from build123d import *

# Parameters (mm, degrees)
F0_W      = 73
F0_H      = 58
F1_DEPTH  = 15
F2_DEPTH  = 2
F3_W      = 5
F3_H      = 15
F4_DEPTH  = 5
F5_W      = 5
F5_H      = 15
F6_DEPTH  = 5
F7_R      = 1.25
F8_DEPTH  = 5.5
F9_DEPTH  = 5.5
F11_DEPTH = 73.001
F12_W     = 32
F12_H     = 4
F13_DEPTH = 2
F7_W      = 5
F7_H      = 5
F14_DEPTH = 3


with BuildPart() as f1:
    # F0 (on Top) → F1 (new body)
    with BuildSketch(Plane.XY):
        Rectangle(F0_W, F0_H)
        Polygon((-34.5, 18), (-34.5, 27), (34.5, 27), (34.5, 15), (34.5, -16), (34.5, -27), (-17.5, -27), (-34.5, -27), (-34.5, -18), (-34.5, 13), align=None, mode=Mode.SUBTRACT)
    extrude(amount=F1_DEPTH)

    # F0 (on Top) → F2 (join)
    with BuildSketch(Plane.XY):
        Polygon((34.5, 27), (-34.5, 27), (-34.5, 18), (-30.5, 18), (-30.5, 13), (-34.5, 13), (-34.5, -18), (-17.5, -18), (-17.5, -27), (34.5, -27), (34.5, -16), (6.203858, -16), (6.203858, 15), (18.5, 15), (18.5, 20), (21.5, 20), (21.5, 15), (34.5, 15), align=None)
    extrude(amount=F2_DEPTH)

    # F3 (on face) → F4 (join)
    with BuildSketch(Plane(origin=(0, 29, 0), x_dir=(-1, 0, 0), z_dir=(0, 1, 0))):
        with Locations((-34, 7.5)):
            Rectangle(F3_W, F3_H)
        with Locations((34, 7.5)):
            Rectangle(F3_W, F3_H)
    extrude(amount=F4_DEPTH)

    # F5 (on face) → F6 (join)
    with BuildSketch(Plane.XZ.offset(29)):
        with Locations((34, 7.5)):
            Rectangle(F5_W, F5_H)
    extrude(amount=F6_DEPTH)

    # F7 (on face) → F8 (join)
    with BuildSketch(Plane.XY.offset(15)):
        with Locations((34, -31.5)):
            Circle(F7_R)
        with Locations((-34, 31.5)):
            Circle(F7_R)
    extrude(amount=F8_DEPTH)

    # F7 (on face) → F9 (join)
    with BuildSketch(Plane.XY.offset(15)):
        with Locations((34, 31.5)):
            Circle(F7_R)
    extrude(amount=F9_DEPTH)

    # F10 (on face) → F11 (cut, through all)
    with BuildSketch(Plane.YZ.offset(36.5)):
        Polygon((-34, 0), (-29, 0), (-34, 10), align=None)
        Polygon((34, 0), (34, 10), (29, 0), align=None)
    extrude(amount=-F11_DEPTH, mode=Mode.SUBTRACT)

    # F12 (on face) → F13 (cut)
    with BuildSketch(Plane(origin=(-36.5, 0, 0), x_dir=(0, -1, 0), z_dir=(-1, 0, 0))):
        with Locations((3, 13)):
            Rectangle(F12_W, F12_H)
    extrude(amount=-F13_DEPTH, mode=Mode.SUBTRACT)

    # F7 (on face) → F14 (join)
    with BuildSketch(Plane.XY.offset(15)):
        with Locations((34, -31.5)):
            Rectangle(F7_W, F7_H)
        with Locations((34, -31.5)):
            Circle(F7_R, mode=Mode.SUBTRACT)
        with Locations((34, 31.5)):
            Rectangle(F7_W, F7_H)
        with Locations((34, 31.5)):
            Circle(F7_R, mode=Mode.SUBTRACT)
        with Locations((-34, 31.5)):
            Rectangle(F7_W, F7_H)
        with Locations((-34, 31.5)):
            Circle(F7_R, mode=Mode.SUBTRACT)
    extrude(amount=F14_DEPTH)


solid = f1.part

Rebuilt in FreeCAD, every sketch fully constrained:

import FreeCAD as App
import Part
import Sketcher

V = App.Vector

doc = App.newDocument("Part")
params = doc.addObject("Spreadsheet::Sheet", "Params")
for row, (alias, value) in enumerate([
    ("sketch1_width", "73 mm"),
    ("sketch1_width2", "69 mm"),
    ("sketch1_height", "58 mm"),
    ("sketch1_height2", "54 mm"),
    ("pad1_length", "15 mm"),
    ("sketch2_width", "69 mm"),
    ("sketch2_width2", "4 mm"),
    ("sketch2_width3", "17 mm"),
    ("sketch2_width4", "3 mm"),
    ("sketch2_width5", "13 mm"),
    ("pad2_length", "2 mm"),
    ("sketch3_width", "5 mm"),
    ("sketch3_height", "15 mm"),
    ("pad3_length", "5 mm"),
    ("sketch4_width", "5 mm"),
    ("sketch4_height", "15 mm"),
    ("pad4_length", "5 mm"),
    ("sketch5_diameter", "2.5 mm"),
    ("pad5_length", "5.5 mm"),
    ("sketch6_diameter", "2.5 mm"),
    ("pad6_length", "5.5 mm"),
    ("sketch7_width", "5 mm"),
    ("sketch7_height", "10 mm"),
    ("sketch8_width", "32 mm"),
    ("sketch8_height", "4 mm"),
    ("pocket2_length", "2 mm"),
    ("sketch9_diameter", "2.5 mm"),
    ("sketch9_width", "5 mm"),
    ("pad7_length", "3 mm"),
], start=1):
    params.set(f"A{row}", alias)
    params.set(f"B{row}", "=" + value)
    params.setAlias(f"B{row}", alias)

body = doc.addObject("PartDesign::Body", "Body")

# Sketch on XY plane
sketch1 = body.newObject("Sketcher::SketchObject", "Sketch")
sketch1.AttachmentSupport = (doc.getObject("XY_Plane"), [""])
sketch1.MapMode = "FlatFace"
sketch1.addGeometry(Part.LineSegment(V(-36, 29, 0), V(-36, -29, 0)), False)
sketch1.addGeometry(Part.LineSegment(V(-36, -29, 0), V(36, -29, 0)), False)
sketch1.addGeometry(Part.LineSegment(V(36, -29, 0), V(36, 29, 0)), False)
sketch1.addGeometry(Part.LineSegment(V(36, 29, 0), V(-36, 29, 0)), False)
sketch1.addGeometry(Part.LineSegment(V(-34, -27, 0), V(-34, 27, 0)), False)
sketch1.addGeometry(Part.LineSegment(V(-34, 27, 0), V(34, 27, 0)), False)
sketch1.addGeometry(Part.LineSegment(V(34, 27, 0), V(34, -27, 0)), False)
sketch1.addGeometry(Part.LineSegment(V(34, -27, 0), V(-34, -27, 0)), False)
sketch1.addConstraint(Sketcher.Constraint("Coincident", 0, 2, 1, 1))
sketch1.addConstraint(Sketcher.Constraint("Coincident", 1, 2, 2, 1))
sketch1.addConstraint(Sketcher.Constraint("Coincident", 2, 2, 3, 1))
sketch1.addConstraint(Sketcher.Constraint("Coincident", 3, 2, 0, 1))
sketch1.addConstraint(Sketcher.Constraint("Coincident", 4, 2, 5, 1))
sketch1.addConstraint(Sketcher.Constraint("Coincident", 5, 2, 6, 1))
sketch1.addConstraint(Sketcher.Constraint("Coincident", 6, 2, 7, 1))
sketch1.addConstraint(Sketcher.Constraint("Coincident", 7, 2, 4, 1))
sketch1.addConstraint(Sketcher.Constraint("Vertical", 0))
sketch1.addConstraint(Sketcher.Constraint("Horizontal", 1))
sketch1.addConstraint(Sketcher.Constraint("Vertical", 2))
sketch1.addConstraint(Sketcher.Constraint("Horizontal", 3))
sketch1.addConstraint(Sketcher.Constraint("Vertical", 4))
sketch1.addConstraint(Sketcher.Constraint("Horizontal", 5))
sketch1.addConstraint(Sketcher.Constraint("Vertical", 6))
sketch1.addConstraint(Sketcher.Constraint("Horizontal", 7))
sketch1.addConstraint(Sketcher.Constraint("Symmetric", 0, 2, 2, 2, -1, 1))
sketch1.addConstraint(Sketcher.Constraint("Symmetric", 4, 2, 6, 2, -1, 1))
sketch1.addConstraint(Sketcher.Constraint("DistanceX", 1, 1, 1, 2, 73.0))
sketch1.addConstraint(Sketcher.Constraint("DistanceX", 5, 1, 5, 2, 69.0))
sketch1.addConstraint(Sketcher.Constraint("DistanceY", 0, 2, 0, 1, 58.0))
sketch1.addConstraint(Sketcher.Constraint("DistanceY", 4, 1, 4, 2, 54.0))
sketch1.setExpression("Constraints[18]", "Params.sketch1_width")
sketch1.setExpression("Constraints[19]", "Params.sketch1_width2")
sketch1.setExpression("Constraints[20]", "Params.sketch1_height")
sketch1.setExpression("Constraints[21]", "Params.sketch1_height2")
pad1 = body.newObject("PartDesign::Pad", "Pad")
pad1.Profile = sketch1
pad1.setExpression("Length", "Params.pad1_length")

# Sketch on XY plane
sketch2 = body.newObject("Sketcher::SketchObject", "Sketch001")
sketch2.AttachmentSupport = (doc.getObject("XY_Plane"), [""])
sketch2.MapMode = "FlatFace"
sketch2.addGeometry(Part.LineSegment(V(34.5, 27, 0), V(-34.5, 27, 0)), False)
sketch2.addGeometry(Part.LineSegment(V(-34.5, 27, 0), V(-34.5, 18, 0)), False)
sketch2.addGeometry(Part.LineSegment(V(-34.5, 18, 0), V(-30.5, 18, 0)), False)
sketch2.addGeometry(Part.LineSegment(V(-30.5, 18, 0), V(-30.5, 13, 0)), False)
sketch2.addGeometry(Part.LineSegment(V(-30.5, 13, 0), V(-34.5, 13, 0)), False)
sketch2.addGeometry(Part.LineSegment(V(-34.5, 13, 0), V(-34.5, -18, 0)), False)
sketch2.addGeometry(Part.LineSegment(V(-34.5, -18, 0), V(-17.5, -18, 0)), False)
sketch2.addGeometry(Part.LineSegment(V(-17.5, -18, 0), V(-17.5, -27, 0)), False)
sketch2.addGeometry(Part.LineSegment(V(-17.5, -27, 0), V(34.5, -27, 0)), False)
sketch2.addGeometry(Part.LineSegment(V(34.5, -27, 0), V(34.5, -16, 0)), False)
sketch2.addGeometry(Part.LineSegment(V(34.5, -16, 0), V(6.2, -16, 0)), False)
sketch2.addGeometry(Part.LineSegment(V(6.2, -16, 0), V(6.2, 15, 0)), False)
sketch2.addGeometry(Part.LineSegment(V(6.2, 15, 0), V(18.5, 15, 0)), False)
sketch2.addGeometry(Part.LineSegment(V(18.5, 15, 0), V(18.5, 20, 0)), False)
sketch2.addGeometry(Part.LineSegment(V(18.5, 20, 0), V(21.5, 20, 0)), False)
sketch2.addGeometry(Part.LineSegment(V(21.5, 20, 0), V(21.5, 15, 0)), False)
sketch2.addGeometry(Part.LineSegment(V(21.5, 15, 0), V(34.5, 15, 0)), False)
sketch2.addGeometry(Part.LineSegment(V(34.5, 15, 0), V(34.5, 27, 0)), False)
sketch2.addConstraint(Sketcher.Constraint("Coincident", 0, 2, 1, 1))
sketch2.addConstraint(Sketcher.Constraint("Coincident", 1, 2, 2, 1))
sketch2.addConstraint(Sketcher.Constraint("Coincident", 2, 2, 3, 1))
sketch2.addConstraint(Sketcher.Constraint("Coincident", 3, 2, 4, 1))
sketch2.addConstraint(Sketcher.Constraint("Coincident", 4, 2, 5, 1))
sketch2.addConstraint(Sketcher.Constraint("Coincident", 5, 2, 6, 1))
sketch2.addConstraint(Sketcher.Constraint("Coincident", 6, 2, 7, 1))
sketch2.addConstraint(Sketcher.Constraint("Coincident", 7, 2, 8, 1))
sketch2.addConstraint(Sketcher.Constraint("Coincident", 8, 2, 9, 1))
sketch2.addConstraint(Sketcher.Constraint("Coincident", 9, 2, 10, 1))
sketch2.addConstraint(Sketcher.Constraint("Coincident", 10, 2, 11, 1))
sketch2.addConstraint(Sketcher.Constraint("Coincident", 11, 2, 12, 1))
sketch2.addConstraint(Sketcher.Constraint("Coincident", 12, 2, 13, 1))
sketch2.addConstraint(Sketcher.Constraint("Coincident", 13, 2, 14, 1))
sketch2.addConstraint(Sketcher.Constraint("Coincident", 14, 2, 15, 1))
sketch2.addConstraint(Sketcher.Constraint("Coincident", 15, 2, 16, 1))
sketch2.addConstraint(Sketcher.Constraint("Coincident", 16, 2, 17, 1))
sketch2.addConstraint(Sketcher.Constraint("Coincident", 17, 2, 0, 1))
sketch2.addConstraint(Sketcher.Constraint("Horizontal", 0))
sketch2.addConstraint(Sketcher.Constraint("Vertical", 1))
sketch2.addConstraint(Sketcher.Constraint("Horizontal", 2))
sketch2.addConstraint(Sketcher.Constraint("Vertical", 3))
sketch2.addConstraint(Sketcher.Constraint("Horizontal", 4))
sketch2.addConstraint(Sketcher.Constraint("Vertical", 5))
sketch2.addConstraint(Sketcher.Constraint("Horizontal", 6))
sketch2.addConstraint(Sketcher.Constraint("Vertical", 7))
sketch2.addConstraint(Sketcher.Constraint("Horizontal", 8))
sketch2.addConstraint(Sketcher.Constraint("Vertical", 9))
sketch2.addConstraint(Sketcher.Constraint("Horizontal", 10))
sketch2.addConstraint(Sketcher.Constraint("Vertical", 11))
sketch2.addConstraint(Sketcher.Constraint("Horizontal", 12))
sketch2.addConstraint(Sketcher.Constraint("Vertical", 13))
sketch2.addConstraint(Sketcher.Constraint("Horizontal", 14))
sketch2.addConstraint(Sketcher.Constraint("Vertical", 15))
sketch2.addConstraint(Sketcher.Constraint("Horizontal", 16))
sketch2.addConstraint(Sketcher.Constraint("Vertical", 17))
sketch2.addConstraint(Sketcher.Constraint("Symmetric", 0, 2, 8, 2, -1, 1))
sketch2.addConstraint(Sketcher.Constraint("Symmetric", 1, 2, 5, 2, -1))
sketch2.addConstraint(Sketcher.Constraint("Horizontal", 12, 2, 15, 2))
sketch2.addConstraint(Sketcher.Constraint("Vertical", 9, 2, 16, 2))
sketch2.addConstraint(Sketcher.Constraint("Equal", 5, 11))
sketch2.addConstraint(Sketcher.Constraint("Equal", 3, 13))
sketch2.addConstraint(Sketcher.Constraint("DistanceX", 0, 2, 0, 1, 69.0))
sketch2.addConstraint(Sketcher.Constraint("DistanceX", 2, 1, 2, 2, 4.0))
sketch2.addConstraint(Sketcher.Constraint("DistanceX", 6, 1, 6, 2, 17.0))
sketch2.addConstraint(Sketcher.Constraint("DistanceX", 14, 1, 14, 2, 3.0))
sketch2.addConstraint(Sketcher.Constraint("DistanceX", 16, 1, 16, 2, 13.0))
sketch2.addConstraint(Sketcher.Constraint("DistanceY", 1, 2, 1, 1, 9.0))
sketch2.addConstraint(Sketcher.Constraint("DistanceY", 3, 2, 3, 1, 5.0))
sketch2.addConstraint(Sketcher.Constraint("DistanceY", 5, 2, 5, 1, 31.0))
sketch2.addConstraint(Sketcher.Constraint("DistanceY", 9, 1, 9, 2, 11.0))
sketch2.addConstraint(Sketcher.Constraint("DistanceX", 10, 2, 10, 1, 28.296142))
sketch2.setExpression("Constraints[42]", "Params.sketch2_width")
sketch2.setExpression("Constraints[43]", "Params.sketch2_width2")
sketch2.setExpression("Constraints[44]", "Params.sketch2_width3")
sketch2.setExpression("Constraints[45]", "Params.sketch2_width4")
sketch2.setExpression("Constraints[46]", "Params.sketch2_width5")
pad2 = body.newObject("PartDesign::Pad", "Pad001")
pad2.Profile = sketch2
pad2.setExpression("Length", "Params.pad2_length")

# Sketch on XZ plane
sketch3 = body.newObject("Sketcher::SketchObject", "Sketch002")
sketch3.AttachmentSupport = (doc.getObject("XZ_Plane"), [""])
sketch3.MapMode = "FlatFace"
sketch3.AttachmentOffset = App.Placement(V(0, 0, -29), App.Rotation())
sketch3.addGeometry(Part.LineSegment(V(36, 15, 0), V(36, 0, 0)), False)
sketch3.addGeometry(Part.LineSegment(V(36, 0, 0), V(32, 0, 0)), False)
sketch3.addGeometry(Part.LineSegment(V(32, 0, 0), V(32, 15, 0)), False)
sketch3.addGeometry(Part.LineSegment(V(32, 15, 0), V(36, 15, 0)), False)
sketch3.addGeometry(Part.LineSegment(V(-32, 15, 0), V(-32, 0, 0)), False)
sketch3.addGeometry(Part.LineSegment(V(-32, 0, 0), V(-36, 0, 0)), False)
sketch3.addGeometry(Part.LineSegment(V(-36, 0, 0), V(-36, 15, 0)), False)
sketch3.addGeometry(Part.LineSegment(V(-36, 15, 0), V(-32, 15, 0)), False)
sketch3.addConstraint(Sketcher.Constraint("Coincident", 0, 2, 1, 1))
sketch3.addConstraint(Sketcher.Constraint("Coincident", 1, 2, 2, 1))
sketch3.addConstraint(Sketcher.Constraint("Coincident", 2, 2, 3, 1))
sketch3.addConstraint(Sketcher.Constraint("Coincident", 3, 2, 0, 1))
sketch3.addConstraint(Sketcher.Constraint("Coincident", 4, 2, 5, 1))
sketch3.addConstraint(Sketcher.Constraint("Coincident", 5, 2, 6, 1))
sketch3.addConstraint(Sketcher.Constraint("Coincident", 6, 2, 7, 1))
sketch3.addConstraint(Sketcher.Constraint("Coincident", 7, 2, 4, 1))
sketch3.addConstraint(Sketcher.Constraint("Vertical", 0))
sketch3.addConstraint(Sketcher.Constraint("Horizontal", 1))
sketch3.addConstraint(Sketcher.Constraint("Vertical", 2))
sketch3.addConstraint(Sketcher.Constraint("Horizontal", 3))
sketch3.addConstraint(Sketcher.Constraint("Vertical", 4))
sketch3.addConstraint(Sketcher.Constraint("Horizontal", 5))
sketch3.addConstraint(Sketcher.Constraint("Vertical", 6))
sketch3.addConstraint(Sketcher.Constraint("Horizontal", 7))
sketch3.addConstraint(Sketcher.Constraint("Symmetric", 1, 2, 4, 2, -1, 1))
sketch3.addConstraint(Sketcher.Constraint("Symmetric", 0, 2, 5, 2, -2))
sketch3.addConstraint(Sketcher.Constraint("Horizontal", 3, 2, 6, 2))
sketch3.addConstraint(Sketcher.Constraint("DistanceX", 1, 2, 1, 1, 5.0))
sketch3.addConstraint(Sketcher.Constraint("DistanceY", 0, 2, 0, 1, 15.0))
sketch3.addConstraint(Sketcher.Constraint("DistanceX", 4, 2, 1, 2, 63.0))
sketch3.setExpression("Constraints[19]", "Params.sketch3_width")
sketch3.setExpression("Constraints[20]", "Params.sketch3_height")
pad3 = body.newObject("PartDesign::Pad", "Pad002")
pad3.Profile = sketch3
pad3.setExpression("Length", "Params.pad3_length")
pad3.Reversed = True

# Sketch on XZ plane
sketch4 = body.newObject("Sketcher::SketchObject", "Sketch003")
sketch4.AttachmentSupport = (doc.getObject("XZ_Plane"), [""])
sketch4.MapMode = "FlatFace"
sketch4.AttachmentOffset = App.Placement(V(0, 0, 29), App.Rotation())
sketch4.addGeometry(Part.LineSegment(V(32, 15, 0), V(32, 0, 0)), False)
sketch4.addGeometry(Part.LineSegment(V(32, 0, 0), V(36, 0, 0)), False)
sketch4.addGeometry(Part.LineSegment(V(36, 0, 0), V(36, 15, 0)), False)
sketch4.addGeometry(Part.LineSegment(V(36, 15, 0), V(32, 15, 0)), False)
sketch4.addConstraint(Sketcher.Constraint("Coincident", 0, 2, 1, 1))
sketch4.addConstraint(Sketcher.Constraint("Coincident", 1, 2, 2, 1))
sketch4.addConstraint(Sketcher.Constraint("Coincident", 2, 2, 3, 1))
sketch4.addConstraint(Sketcher.Constraint("Coincident", 3, 2, 0, 1))
sketch4.addConstraint(Sketcher.Constraint("Vertical", 0))
sketch4.addConstraint(Sketcher.Constraint("Horizontal", 1))
sketch4.addConstraint(Sketcher.Constraint("Vertical", 2))
sketch4.addConstraint(Sketcher.Constraint("Horizontal", 3))
sketch4.addConstraint(Sketcher.Constraint("PointOnObject", 0, 2, -1))
sketch4.addConstraint(Sketcher.Constraint("DistanceX", 1, 1, 1, 2, 5.0))
sketch4.addConstraint(Sketcher.Constraint("DistanceY", 0, 2, 0, 1, 15.0))
sketch4.addConstraint(Sketcher.Constraint("DistanceX", -1, 1, 0, 2, 31.5))
sketch4.setExpression("Constraints[9]", "Params.sketch4_width")
sketch4.setExpression("Constraints[10]", "Params.sketch4_height")
pad4 = body.newObject("PartDesign::Pad", "Pad003")
pad4.Profile = sketch4
pad4.setExpression("Length", "Params.pad4_length")

# Sketch on XY plane
sketch5 = body.newObject("Sketcher::SketchObject", "Sketch004")
sketch5.AttachmentSupport = (doc.getObject("XY_Plane"), [""])
sketch5.MapMode = "FlatFace"
sketch5.AttachmentOffset = App.Placement(V(0, 0, 15), App.Rotation())
sketch5.addGeometry(Part.Circle(V(34, -31.5, 0), V(0, 0, 1), 1.2), False)
sketch5.addGeometry(Part.Circle(V(-34, 31.5, 0), V(0, 0, 1), 1.2), False)
sketch5.addConstraint(Sketcher.Constraint("Equal", 0, 1))
sketch5.addConstraint(Sketcher.Constraint("Symmetric", 0, 3, 1, 3, -1, 1))
sketch5.addConstraint(Sketcher.Constraint("Diameter", 0, 2.5))
sketch5.addConstraint(Sketcher.Constraint("DistanceX", -1, 1, 0, 3, 34.0))
sketch5.addConstraint(Sketcher.Constraint("DistanceY", 0, 3, 1, 3, 63.0))
sketch5.setExpression("Constraints[2]", "Params.sketch5_diameter")
pad5 = body.newObject("PartDesign::Pad", "Pad004")
pad5.Profile = sketch5
pad5.setExpression("Length", "Params.pad5_length")

# Sketch on XY plane
sketch6 = body.newObject("Sketcher::SketchObject", "Sketch005")
sketch6.AttachmentSupport = (doc.getObject("XY_Plane"), [""])
sketch6.MapMode = "FlatFace"
sketch6.AttachmentOffset = App.Placement(V(0, 0, 15), App.Rotation())
sketch6.addGeometry(Part.Circle(V(34, 31.5, 0), V(0, 0, 1), 1.2), False)
sketch6.addConstraint(Sketcher.Constraint("Diameter", 0, 2.5))
sketch6.addConstraint(Sketcher.Constraint("DistanceX", -1, 1, 0, 3, 34.0))
sketch6.addConstraint(Sketcher.Constraint("DistanceY", -1, 1, 0, 3, 31.5))
sketch6.setExpression("Constraints[0]", "Params.sketch6_diameter")
pad6 = body.newObject("PartDesign::Pad", "Pad005")
pad6.Profile = sketch6
pad6.setExpression("Length", "Params.pad6_length")

# Sketch on YZ plane
sketch7 = body.newObject("Sketcher::SketchObject", "Sketch006")
sketch7.AttachmentSupport = (doc.getObject("YZ_Plane"), [""])
sketch7.MapMode = "FlatFace"
sketch7.AttachmentOffset = App.Placement(V(0, 0, 36.5), App.Rotation())
sketch7.addGeometry(Part.LineSegment(V(-34, 0, 0), V(-29, 0, 0)), False)
sketch7.addGeometry(Part.LineSegment(V(-29, 0, 0), V(-34, 10, 0)), False)
sketch7.addGeometry(Part.LineSegment(V(-34, 10, 0), V(-34, 0, 0)), False)
sketch7.addGeometry(Part.LineSegment(V(34, 0, 0), V(34, 10, 0)), False)
sketch7.addGeometry(Part.LineSegment(V(34, 10, 0), V(29, 0, 0)), False)
sketch7.addGeometry(Part.LineSegment(V(29, 0, 0), V(34, 0, 0)), False)
sketch7.addConstraint(Sketcher.Constraint("Coincident", 0, 2, 1, 1))
sketch7.addConstraint(Sketcher.Constraint("Coincident", 1, 2, 2, 1))
sketch7.addConstraint(Sketcher.Constraint("Coincident", 2, 2, 0, 1))
sketch7.addConstraint(Sketcher.Constraint("Coincident", 3, 2, 4, 1))
sketch7.addConstraint(Sketcher.Constraint("Coincident", 4, 2, 5, 1))
sketch7.addConstraint(Sketcher.Constraint("Coincident", 5, 2, 3, 1))
sketch7.addConstraint(Sketcher.Constraint("Horizontal", 0))
sketch7.addConstraint(Sketcher.Constraint("Vertical", 2))
sketch7.addConstraint(Sketcher.Constraint("Vertical", 3))
sketch7.addConstraint(Sketcher.Constraint("Horizontal", 5))
sketch7.addConstraint(Sketcher.Constraint("Symmetric", 0, 2, 4, 2, -1, 1))
sketch7.addConstraint(Sketcher.Constraint("Symmetric", 1, 2, 3, 2, -2))
sketch7.addConstraint(Sketcher.Constraint("PointOnObject", 0, 2, -1))
sketch7.addConstraint(Sketcher.Constraint("DistanceX", 0, 1, 0, 2, 5.0))
sketch7.addConstraint(Sketcher.Constraint("DistanceY", 2, 2, 2, 1, 10.0))
sketch7.addConstraint(Sketcher.Constraint("DistanceX", 0, 2, -1, 1, 29.0))
sketch7.setExpression("Constraints[13]", "Params.sketch7_width")
sketch7.setExpression("Constraints[14]", "Params.sketch7_height")
pocket1 = body.newObject("PartDesign::Pocket", "Pocket")
pocket1.Profile = sketch7
pocket1.Type = "ThroughAll"

# Sketch on YZ plane
sketch8 = body.newObject("Sketcher::SketchObject", "Sketch007")
sketch8.AttachmentSupport = (doc.getObject("YZ_Plane"), [""])
sketch8.MapMode = "FlatFace"
sketch8.AttachmentOffset = App.Placement(V(0, 0, -36.5), App.Rotation())
sketch8.addGeometry(Part.LineSegment(V(13, 15, 0), V(13, 11, 0)), False)
sketch8.addGeometry(Part.LineSegment(V(13, 11, 0), V(-19, 11, 0)), False)
sketch8.addGeometry(Part.LineSegment(V(-19, 11, 0), V(-19, 15, 0)), False)
sketch8.addGeometry(Part.LineSegment(V(-19, 15, 0), V(13, 15, 0)), False)
sketch8.addConstraint(Sketcher.Constraint("Coincident", 0, 2, 1, 1))
sketch8.addConstraint(Sketcher.Constraint("Coincident", 1, 2, 2, 1))
sketch8.addConstraint(Sketcher.Constraint("Coincident", 2, 2, 3, 1))
sketch8.addConstraint(Sketcher.Constraint("Coincident", 3, 2, 0, 1))
sketch8.addConstraint(Sketcher.Constraint("Vertical", 0))
sketch8.addConstraint(Sketcher.Constraint("Horizontal", 1))
sketch8.addConstraint(Sketcher.Constraint("Vertical", 2))
sketch8.addConstraint(Sketcher.Constraint("Horizontal", 3))
sketch8.addConstraint(Sketcher.Constraint("DistanceX", 1, 2, 1, 1, 32.0))
sketch8.addConstraint(Sketcher.Constraint("DistanceY", 0, 2, 0, 1, 4.0))
sketch8.addConstraint(Sketcher.Constraint("DistanceX", -1, 1, 0, 2, 13.0))
sketch8.addConstraint(Sketcher.Constraint("DistanceY", -1, 1, 0, 2, 11.0))
sketch8.setExpression("Constraints[8]", "Params.sketch8_width")
sketch8.setExpression("Constraints[9]", "Params.sketch8_height")
pocket2 = body.newObject("PartDesign::Pocket", "Pocket001")
pocket2.Profile = sketch8
pocket2.setExpression("Length", "Params.pocket2_length")
pocket2.Reversed = True

# Sketch on XY plane
sketch9 = body.newObject("Sketcher::SketchObject", "Sketch008")
sketch9.AttachmentSupport = (doc.getObject("XY_Plane"), [""])
sketch9.MapMode = "FlatFace"
sketch9.AttachmentOffset = App.Placement(V(0, 0, 15), App.Rotation())
sketch9.addGeometry(Part.LineSegment(V(31.5, -29, 0), V(31.5, -34, 0)), False)
sketch9.addGeometry(Part.LineSegment(V(31.5, -34, 0), V(36.5, -34, 0)), False)
sketch9.addGeometry(Part.LineSegment(V(36.5, -34, 0), V(36.5, -29, 0)), False)
sketch9.addGeometry(Part.LineSegment(V(36.5, -29, 0), V(31.5, -29, 0)), False)
sketch9.addGeometry(Part.Circle(V(34, -31.5, 0), V(0, 0, 1), 1.2), False)
sketch9.addGeometry(Part.LineSegment(V(31.5, 34, 0), V(31.5, 29, 0)), False)
sketch9.addGeometry(Part.LineSegment(V(31.5, 29, 0), V(36.5, 29, 0)), False)
sketch9.addGeometry(Part.LineSegment(V(36.5, 29, 0), V(36.5, 34, 0)), False)
sketch9.addGeometry(Part.LineSegment(V(36.5, 34, 0), V(31.5, 34, 0)), False)
sketch9.addGeometry(Part.Circle(V(34, 31.5, 0), V(0, 0, 1), 1.2), False)
sketch9.addGeometry(Part.LineSegment(V(-36.5, 34, 0), V(-36.5, 29, 0)), False)
sketch9.addGeometry(Part.LineSegment(V(-36.5, 29, 0), V(-31.5, 29, 0)), False)
sketch9.addGeometry(Part.LineSegment(V(-31.5, 29, 0), V(-31.5, 34, 0)), False)
sketch9.addGeometry(Part.LineSegment(V(-31.5, 34, 0), V(-36.5, 34, 0)), False)
sketch9.addGeometry(Part.Circle(V(-34, 31.5, 0), V(0, 0, 1), 1.2), False)
sketch9.addConstraint(Sketcher.Constraint("Coincident", 0, 2, 1, 1))
sketch9.addConstraint(Sketcher.Constraint("Coincident", 1, 2, 2, 1))
sketch9.addConstraint(Sketcher.Constraint("Coincident", 2, 2, 3, 1))
sketch9.addConstraint(Sketcher.Constraint("Coincident", 3, 2, 0, 1))
sketch9.addConstraint(Sketcher.Constraint("Coincident", 5, 2, 6, 1))
sketch9.addConstraint(Sketcher.Constraint("Coincident", 6, 2, 7, 1))
sketch9.addConstraint(Sketcher.Constraint("Coincident", 7, 2, 8, 1))
sketch9.addConstraint(Sketcher.Constraint("Coincident", 8, 2, 5, 1))
sketch9.addConstraint(Sketcher.Constraint("Coincident", 10, 2, 11, 1))
sketch9.addConstraint(Sketcher.Constraint("Coincident", 11, 2, 12, 1))
sketch9.addConstraint(Sketcher.Constraint("Coincident", 12, 2, 13, 1))
sketch9.addConstraint(Sketcher.Constraint("Coincident", 13, 2, 10, 1))
sketch9.addConstraint(Sketcher.Constraint("Vertical", 0))
sketch9.addConstraint(Sketcher.Constraint("Horizontal", 1))
sketch9.addConstraint(Sketcher.Constraint("Vertical", 2))
sketch9.addConstraint(Sketcher.Constraint("Horizontal", 3))
sketch9.addConstraint(Sketcher.Constraint("Vertical", 5))
sketch9.addConstraint(Sketcher.Constraint("Horizontal", 6))
sketch9.addConstraint(Sketcher.Constraint("Vertical", 7))
sketch9.addConstraint(Sketcher.Constraint("Horizontal", 8))
sketch9.addConstraint(Sketcher.Constraint("Vertical", 10))
sketch9.addConstraint(Sketcher.Constraint("Horizontal", 11))
sketch9.addConstraint(Sketcher.Constraint("Vertical", 12))
sketch9.addConstraint(Sketcher.Constraint("Horizontal", 13))
sketch9.addConstraint(Sketcher.Constraint("Equal", 4, 9))
sketch9.addConstraint(Sketcher.Constraint("Equal", 9, 14))
sketch9.addConstraint(Sketcher.Constraint("Symmetric", 4, 3, 14, 3, -1, 1))
sketch9.addConstraint(Sketcher.Constraint("Symmetric", 2, 2, 10, 2, -1, 1))
sketch9.addConstraint(Sketcher.Constraint("Symmetric", 0, 2, 12, 2, -1, 1))
sketch9.addConstraint(Sketcher.Constraint("Symmetric", 9, 3, 14, 3, -2))
sketch9.addConstraint(Sketcher.Constraint("Symmetric", 6, 2, 10, 2, -2))
sketch9.addConstraint(Sketcher.Constraint("Symmetric", 8, 2, 12, 2, -2))
sketch9.addConstraint(Sketcher.Constraint("Equal", 13, 0))
sketch9.addConstraint(Sketcher.Constraint("Diameter", 4, 2.5))
sketch9.addConstraint(Sketcher.Constraint("DistanceX", 1, 1, 1, 2, 5.0))
sketch9.addConstraint(Sketcher.Constraint("DistanceX", -1, 1, 4, 3, 34.0))
sketch9.addConstraint(Sketcher.Constraint("DistanceY", 0, 2, -1, 1, 34.0))
sketch9.addConstraint(Sketcher.Constraint("DistanceY", 4, 3, 9, 3, 63.0))
sketch9.addConstraint(Sketcher.Constraint("DistanceX", 10, 2, 5, 2, 68.0))
sketch9.setExpression("Constraints[33]", "Params.sketch9_diameter")
sketch9.setExpression("Constraints[34]", "Params.sketch9_width")
pad7 = body.newObject("PartDesign::Pad", "Pad006")
pad7.Profile = sketch9
pad7.setExpression("Length", "Params.pad7_length")

doc.recompute()
